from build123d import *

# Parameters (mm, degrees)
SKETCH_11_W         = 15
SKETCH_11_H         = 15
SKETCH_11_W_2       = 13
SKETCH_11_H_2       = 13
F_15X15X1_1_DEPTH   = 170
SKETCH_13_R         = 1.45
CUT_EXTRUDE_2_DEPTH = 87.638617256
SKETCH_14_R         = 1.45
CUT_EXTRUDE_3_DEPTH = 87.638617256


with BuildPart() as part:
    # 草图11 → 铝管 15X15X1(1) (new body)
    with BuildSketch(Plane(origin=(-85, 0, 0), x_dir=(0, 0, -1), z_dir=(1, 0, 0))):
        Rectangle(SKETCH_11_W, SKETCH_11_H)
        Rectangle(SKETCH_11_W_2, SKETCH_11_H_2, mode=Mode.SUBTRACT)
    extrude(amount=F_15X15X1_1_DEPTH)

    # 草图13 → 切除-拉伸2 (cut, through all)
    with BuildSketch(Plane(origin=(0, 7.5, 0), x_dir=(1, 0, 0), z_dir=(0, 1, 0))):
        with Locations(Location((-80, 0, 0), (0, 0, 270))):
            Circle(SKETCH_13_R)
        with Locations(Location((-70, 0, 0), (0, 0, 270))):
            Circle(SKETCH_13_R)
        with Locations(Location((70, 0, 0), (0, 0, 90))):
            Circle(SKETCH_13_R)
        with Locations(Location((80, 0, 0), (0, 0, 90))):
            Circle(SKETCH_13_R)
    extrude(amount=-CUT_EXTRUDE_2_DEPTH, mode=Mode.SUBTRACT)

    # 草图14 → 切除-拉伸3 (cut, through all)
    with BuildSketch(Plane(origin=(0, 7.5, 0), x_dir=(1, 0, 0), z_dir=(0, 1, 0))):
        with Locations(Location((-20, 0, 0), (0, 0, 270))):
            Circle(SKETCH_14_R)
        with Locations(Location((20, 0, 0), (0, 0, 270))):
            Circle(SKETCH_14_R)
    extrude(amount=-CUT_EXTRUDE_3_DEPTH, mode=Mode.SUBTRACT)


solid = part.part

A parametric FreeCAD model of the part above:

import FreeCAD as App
import Part
import Sketcher
from FreeCAD import Vector
Q = App.Units.Quantity

doc = App.newDocument("Part")
body = doc.addObject("PartDesign::Body", "Body")

# Sketch on YZ plane
sketch1 = doc.addObject("Sketcher::SketchObject", "Sketch")
body.addObject(sketch1)
sketch1.AttachmentSupport = (doc.YZ_Plane, [""])
sketch1.MapMode = "FlatFace"
sketch1.AttachmentOffset = App.Placement(Vector(0, 0, -85), App.Rotation())
sketch1.addGeometry(Part.LineSegment(Vector(8, 8, 0), Vector(-8, 8, 0)), False)
sketch1.addGeometry(Part.LineSegment(Vector(-8, 8, 0), Vector(-8, -8, 0)), False)
sketch1.addGeometry(Part.LineSegment(Vector(-8, -8, 0), Vector(8, -8, 0)), False)
sketch1.addGeometry(Part.LineSegment(Vector(8, -8, 0), Vector(8, 8, 0)), False)
sketch1.addGeometry(Part.LineSegment(Vector(-6, -6, 0), Vector(-6, 6, 0)), False)
sketch1.addGeometry(Part.LineSegment(Vector(-6, 6, 0), Vector(6, 6, 0)), False)
sketch1.addGeometry(Part.LineSegment(Vector(6, 6, 0), Vector(6, -6, 0)), False)
sketch1.addGeometry(Part.LineSegment(Vector(6, -6, 0), Vector(-6, -6, 0)), False)
sketch1.addConstraint(Sketcher.Constraint("Coincident", 0, 2, 1, 1))
sketch1.addConstraint(Sketcher.Constraint("Coincident", 1, 2, 2, 1))
sketch1.addConstraint(Sketcher.Constraint("Coincident", 2, 2, 3, 1))
sketch1.addConstraint(Sketcher.Constraint("Coincident", 3, 2, 0, 1))
sketch1.addConstraint(Sketcher.Constraint("Coincident", 4, 2, 5, 1))
sketch1.addConstraint(Sketcher.Constraint("Coincident", 5, 2, 6, 1))
sketch1.addConstraint(Sketcher.Constraint("Coincident", 6, 2, 7, 1))
sketch1.addConstraint(Sketcher.Constraint("Coincident", 7, 2, 4, 1))
sketch1.addConstraint(Sketcher.Constraint("Horizontal", 0))
sketch1.addConstraint(Sketcher.Constraint("Vertical", 1))
sketch1.addConstraint(Sketcher.Constraint("Horizontal", 2))
sketch1.addConstraint(Sketcher.Constraint("Vertical", 3))
sketch1.addConstraint(Sketcher.Constraint("Vertical", 4))
sketch1.addConstraint(Sketcher.Constraint("Horizontal", 5))
sketch1.addConstraint(Sketcher.Constraint("Vertical", 6))
sketch1.addConstraint(Sketcher.Constraint("Horizontal", 7))
sketch1.addConstraint(Sketcher.Constraint("Symmetric", 0, 2, 2, 2, -1, 1))
sketch1.addConstraint(Sketcher.Constraint("Symmetric", 4, 2, 6, 2, -1, 1))
sketch1.addConstraint(Sketcher.Constraint("Equal", 2, 1))
sketch1.addConstraint(Sketcher.Constraint("Equal", 7, 4))
sketch1.addConstraint(Sketcher.Constraint("DistanceX", 0, 2, 0, 1, Q("15 mm")))
sketch1.addConstraint(Sketcher.Constraint("DistanceX", 5, 1, 5, 2, Q("13 mm")))
pad1 = doc.addObject("PartDesign::Pad", "Pad")
body.addObject(pad1)
pad1.Profile = sketch1
pad1.Length = 170

# Sketch on XZ plane
sketch2 = doc.addObject("Sketcher::SketchObject", "Sketch001")
body.addObject(sketch2)
sketch2.AttachmentSupport = (doc.XZ_Plane, [""])
sketch2.MapMode = "FlatFace"
sketch2.AttachmentOffset = App.Placement(Vector(0, 0, -7.5), App.Rotation())
sketch2.addGeometry(Part.Circle(Vector(-80, 0, 0), Vector(0, 0, 1), 1.4), False)
sketch2.addGeometry(Part.Circle(Vector(-70, 0, 0), Vector(0, 0, 1), 1.4), False)
sketch2.addGeometry(Part.Circle(Vector(70, 0, 0), Vector(0, 0, 1), 1.4), False)
sketch2.addGeometry(Part.Circle(Vector(80, 0, 0), Vector(0, 0, 1), 1.4), False)
sketch2.addConstraint(Sketcher.Constraint("Equal", 0, 1))
sketch2.addConstraint(Sketcher.Constraint("Equal", 1, 2))
sketch2.addConstraint(Sketcher.Constraint("Equal", 2, 3))
sketch2.addConstraint(Sketcher.Constraint("Symmetric", 1, 3, 2, 3, -1, 1))
sketch2.addConstraint(Sketcher.Constraint("Symmetric", 0, 3, 3, 3, -1, 1))
sketch2.addConstraint(Sketcher.Constraint("PointOnObject", 0, 3, -1))
sketch2.addConstraint(Sketcher.Constraint("PointOnObject", 1, 3, -1))
sketch2.addConstraint(Sketcher.Constraint("Diameter", 0, Q("2.9 mm")))
sketch2.addConstraint(Sketcher.Constraint("DistanceX", 0, 3, -1, 1, Q("80 mm")))
sketch2.addConstraint(Sketcher.Constraint("DistanceX", 1, 3, -1, 1, Q("70 mm")))
pocket1 = doc.addObject("PartDesign::Pocket", "Pocket")
body.addObject(pocket1)
pocket1.Profile = sketch2
pocket1.Type = "ThroughAll"
pocket1.Reversed = True

# Sketch on XZ plane
sketch3 = doc.addObject("Sketcher::SketchObject", "Sketch002")
body.addObject(sketch3)
sketch3.AttachmentSupport = (doc.XZ_Plane, [""])
sketch3.MapMode = "FlatFace"
sketch3.AttachmentOffset = App.Placement(Vector(0, 0, -7.5), App.Rotation())
sketch3.addGeometry(Part.Circle(Vector(-20, 0, 0), Vector(0, 0, 1), 1.4), False)
sketch3.addGeometry(Part.Circle(Vector(20, 0, 0), Vector(0, 0, 1), 1.4), False)
sketch3.addConstraint(Sketcher.Constraint("Equal", 0, 1))
sketch3.addConstraint(Sketcher.Constraint("Symmetric", 0, 3, 1, 3, -1, 1))
sketch3.addConstraint(Sketcher.Constraint("PointOnObject", 0, 3, -1))
sketch3.addConstraint(Sketcher.Constraint("Diameter", 0, Q("2.9 mm")))
sketch3.addConstraint(Sketcher.Constraint("DistanceX", 0, 3, -1, 1, Q("20 mm")))
pocket2 = doc.addObject("PartDesign::Pocket", "Pocket001")
body.addObject(pocket2)
pocket2.Profile = sketch3
pocket2.Type = "ThroughAll"
pocket2.Reversed = True

doc.recompute()
